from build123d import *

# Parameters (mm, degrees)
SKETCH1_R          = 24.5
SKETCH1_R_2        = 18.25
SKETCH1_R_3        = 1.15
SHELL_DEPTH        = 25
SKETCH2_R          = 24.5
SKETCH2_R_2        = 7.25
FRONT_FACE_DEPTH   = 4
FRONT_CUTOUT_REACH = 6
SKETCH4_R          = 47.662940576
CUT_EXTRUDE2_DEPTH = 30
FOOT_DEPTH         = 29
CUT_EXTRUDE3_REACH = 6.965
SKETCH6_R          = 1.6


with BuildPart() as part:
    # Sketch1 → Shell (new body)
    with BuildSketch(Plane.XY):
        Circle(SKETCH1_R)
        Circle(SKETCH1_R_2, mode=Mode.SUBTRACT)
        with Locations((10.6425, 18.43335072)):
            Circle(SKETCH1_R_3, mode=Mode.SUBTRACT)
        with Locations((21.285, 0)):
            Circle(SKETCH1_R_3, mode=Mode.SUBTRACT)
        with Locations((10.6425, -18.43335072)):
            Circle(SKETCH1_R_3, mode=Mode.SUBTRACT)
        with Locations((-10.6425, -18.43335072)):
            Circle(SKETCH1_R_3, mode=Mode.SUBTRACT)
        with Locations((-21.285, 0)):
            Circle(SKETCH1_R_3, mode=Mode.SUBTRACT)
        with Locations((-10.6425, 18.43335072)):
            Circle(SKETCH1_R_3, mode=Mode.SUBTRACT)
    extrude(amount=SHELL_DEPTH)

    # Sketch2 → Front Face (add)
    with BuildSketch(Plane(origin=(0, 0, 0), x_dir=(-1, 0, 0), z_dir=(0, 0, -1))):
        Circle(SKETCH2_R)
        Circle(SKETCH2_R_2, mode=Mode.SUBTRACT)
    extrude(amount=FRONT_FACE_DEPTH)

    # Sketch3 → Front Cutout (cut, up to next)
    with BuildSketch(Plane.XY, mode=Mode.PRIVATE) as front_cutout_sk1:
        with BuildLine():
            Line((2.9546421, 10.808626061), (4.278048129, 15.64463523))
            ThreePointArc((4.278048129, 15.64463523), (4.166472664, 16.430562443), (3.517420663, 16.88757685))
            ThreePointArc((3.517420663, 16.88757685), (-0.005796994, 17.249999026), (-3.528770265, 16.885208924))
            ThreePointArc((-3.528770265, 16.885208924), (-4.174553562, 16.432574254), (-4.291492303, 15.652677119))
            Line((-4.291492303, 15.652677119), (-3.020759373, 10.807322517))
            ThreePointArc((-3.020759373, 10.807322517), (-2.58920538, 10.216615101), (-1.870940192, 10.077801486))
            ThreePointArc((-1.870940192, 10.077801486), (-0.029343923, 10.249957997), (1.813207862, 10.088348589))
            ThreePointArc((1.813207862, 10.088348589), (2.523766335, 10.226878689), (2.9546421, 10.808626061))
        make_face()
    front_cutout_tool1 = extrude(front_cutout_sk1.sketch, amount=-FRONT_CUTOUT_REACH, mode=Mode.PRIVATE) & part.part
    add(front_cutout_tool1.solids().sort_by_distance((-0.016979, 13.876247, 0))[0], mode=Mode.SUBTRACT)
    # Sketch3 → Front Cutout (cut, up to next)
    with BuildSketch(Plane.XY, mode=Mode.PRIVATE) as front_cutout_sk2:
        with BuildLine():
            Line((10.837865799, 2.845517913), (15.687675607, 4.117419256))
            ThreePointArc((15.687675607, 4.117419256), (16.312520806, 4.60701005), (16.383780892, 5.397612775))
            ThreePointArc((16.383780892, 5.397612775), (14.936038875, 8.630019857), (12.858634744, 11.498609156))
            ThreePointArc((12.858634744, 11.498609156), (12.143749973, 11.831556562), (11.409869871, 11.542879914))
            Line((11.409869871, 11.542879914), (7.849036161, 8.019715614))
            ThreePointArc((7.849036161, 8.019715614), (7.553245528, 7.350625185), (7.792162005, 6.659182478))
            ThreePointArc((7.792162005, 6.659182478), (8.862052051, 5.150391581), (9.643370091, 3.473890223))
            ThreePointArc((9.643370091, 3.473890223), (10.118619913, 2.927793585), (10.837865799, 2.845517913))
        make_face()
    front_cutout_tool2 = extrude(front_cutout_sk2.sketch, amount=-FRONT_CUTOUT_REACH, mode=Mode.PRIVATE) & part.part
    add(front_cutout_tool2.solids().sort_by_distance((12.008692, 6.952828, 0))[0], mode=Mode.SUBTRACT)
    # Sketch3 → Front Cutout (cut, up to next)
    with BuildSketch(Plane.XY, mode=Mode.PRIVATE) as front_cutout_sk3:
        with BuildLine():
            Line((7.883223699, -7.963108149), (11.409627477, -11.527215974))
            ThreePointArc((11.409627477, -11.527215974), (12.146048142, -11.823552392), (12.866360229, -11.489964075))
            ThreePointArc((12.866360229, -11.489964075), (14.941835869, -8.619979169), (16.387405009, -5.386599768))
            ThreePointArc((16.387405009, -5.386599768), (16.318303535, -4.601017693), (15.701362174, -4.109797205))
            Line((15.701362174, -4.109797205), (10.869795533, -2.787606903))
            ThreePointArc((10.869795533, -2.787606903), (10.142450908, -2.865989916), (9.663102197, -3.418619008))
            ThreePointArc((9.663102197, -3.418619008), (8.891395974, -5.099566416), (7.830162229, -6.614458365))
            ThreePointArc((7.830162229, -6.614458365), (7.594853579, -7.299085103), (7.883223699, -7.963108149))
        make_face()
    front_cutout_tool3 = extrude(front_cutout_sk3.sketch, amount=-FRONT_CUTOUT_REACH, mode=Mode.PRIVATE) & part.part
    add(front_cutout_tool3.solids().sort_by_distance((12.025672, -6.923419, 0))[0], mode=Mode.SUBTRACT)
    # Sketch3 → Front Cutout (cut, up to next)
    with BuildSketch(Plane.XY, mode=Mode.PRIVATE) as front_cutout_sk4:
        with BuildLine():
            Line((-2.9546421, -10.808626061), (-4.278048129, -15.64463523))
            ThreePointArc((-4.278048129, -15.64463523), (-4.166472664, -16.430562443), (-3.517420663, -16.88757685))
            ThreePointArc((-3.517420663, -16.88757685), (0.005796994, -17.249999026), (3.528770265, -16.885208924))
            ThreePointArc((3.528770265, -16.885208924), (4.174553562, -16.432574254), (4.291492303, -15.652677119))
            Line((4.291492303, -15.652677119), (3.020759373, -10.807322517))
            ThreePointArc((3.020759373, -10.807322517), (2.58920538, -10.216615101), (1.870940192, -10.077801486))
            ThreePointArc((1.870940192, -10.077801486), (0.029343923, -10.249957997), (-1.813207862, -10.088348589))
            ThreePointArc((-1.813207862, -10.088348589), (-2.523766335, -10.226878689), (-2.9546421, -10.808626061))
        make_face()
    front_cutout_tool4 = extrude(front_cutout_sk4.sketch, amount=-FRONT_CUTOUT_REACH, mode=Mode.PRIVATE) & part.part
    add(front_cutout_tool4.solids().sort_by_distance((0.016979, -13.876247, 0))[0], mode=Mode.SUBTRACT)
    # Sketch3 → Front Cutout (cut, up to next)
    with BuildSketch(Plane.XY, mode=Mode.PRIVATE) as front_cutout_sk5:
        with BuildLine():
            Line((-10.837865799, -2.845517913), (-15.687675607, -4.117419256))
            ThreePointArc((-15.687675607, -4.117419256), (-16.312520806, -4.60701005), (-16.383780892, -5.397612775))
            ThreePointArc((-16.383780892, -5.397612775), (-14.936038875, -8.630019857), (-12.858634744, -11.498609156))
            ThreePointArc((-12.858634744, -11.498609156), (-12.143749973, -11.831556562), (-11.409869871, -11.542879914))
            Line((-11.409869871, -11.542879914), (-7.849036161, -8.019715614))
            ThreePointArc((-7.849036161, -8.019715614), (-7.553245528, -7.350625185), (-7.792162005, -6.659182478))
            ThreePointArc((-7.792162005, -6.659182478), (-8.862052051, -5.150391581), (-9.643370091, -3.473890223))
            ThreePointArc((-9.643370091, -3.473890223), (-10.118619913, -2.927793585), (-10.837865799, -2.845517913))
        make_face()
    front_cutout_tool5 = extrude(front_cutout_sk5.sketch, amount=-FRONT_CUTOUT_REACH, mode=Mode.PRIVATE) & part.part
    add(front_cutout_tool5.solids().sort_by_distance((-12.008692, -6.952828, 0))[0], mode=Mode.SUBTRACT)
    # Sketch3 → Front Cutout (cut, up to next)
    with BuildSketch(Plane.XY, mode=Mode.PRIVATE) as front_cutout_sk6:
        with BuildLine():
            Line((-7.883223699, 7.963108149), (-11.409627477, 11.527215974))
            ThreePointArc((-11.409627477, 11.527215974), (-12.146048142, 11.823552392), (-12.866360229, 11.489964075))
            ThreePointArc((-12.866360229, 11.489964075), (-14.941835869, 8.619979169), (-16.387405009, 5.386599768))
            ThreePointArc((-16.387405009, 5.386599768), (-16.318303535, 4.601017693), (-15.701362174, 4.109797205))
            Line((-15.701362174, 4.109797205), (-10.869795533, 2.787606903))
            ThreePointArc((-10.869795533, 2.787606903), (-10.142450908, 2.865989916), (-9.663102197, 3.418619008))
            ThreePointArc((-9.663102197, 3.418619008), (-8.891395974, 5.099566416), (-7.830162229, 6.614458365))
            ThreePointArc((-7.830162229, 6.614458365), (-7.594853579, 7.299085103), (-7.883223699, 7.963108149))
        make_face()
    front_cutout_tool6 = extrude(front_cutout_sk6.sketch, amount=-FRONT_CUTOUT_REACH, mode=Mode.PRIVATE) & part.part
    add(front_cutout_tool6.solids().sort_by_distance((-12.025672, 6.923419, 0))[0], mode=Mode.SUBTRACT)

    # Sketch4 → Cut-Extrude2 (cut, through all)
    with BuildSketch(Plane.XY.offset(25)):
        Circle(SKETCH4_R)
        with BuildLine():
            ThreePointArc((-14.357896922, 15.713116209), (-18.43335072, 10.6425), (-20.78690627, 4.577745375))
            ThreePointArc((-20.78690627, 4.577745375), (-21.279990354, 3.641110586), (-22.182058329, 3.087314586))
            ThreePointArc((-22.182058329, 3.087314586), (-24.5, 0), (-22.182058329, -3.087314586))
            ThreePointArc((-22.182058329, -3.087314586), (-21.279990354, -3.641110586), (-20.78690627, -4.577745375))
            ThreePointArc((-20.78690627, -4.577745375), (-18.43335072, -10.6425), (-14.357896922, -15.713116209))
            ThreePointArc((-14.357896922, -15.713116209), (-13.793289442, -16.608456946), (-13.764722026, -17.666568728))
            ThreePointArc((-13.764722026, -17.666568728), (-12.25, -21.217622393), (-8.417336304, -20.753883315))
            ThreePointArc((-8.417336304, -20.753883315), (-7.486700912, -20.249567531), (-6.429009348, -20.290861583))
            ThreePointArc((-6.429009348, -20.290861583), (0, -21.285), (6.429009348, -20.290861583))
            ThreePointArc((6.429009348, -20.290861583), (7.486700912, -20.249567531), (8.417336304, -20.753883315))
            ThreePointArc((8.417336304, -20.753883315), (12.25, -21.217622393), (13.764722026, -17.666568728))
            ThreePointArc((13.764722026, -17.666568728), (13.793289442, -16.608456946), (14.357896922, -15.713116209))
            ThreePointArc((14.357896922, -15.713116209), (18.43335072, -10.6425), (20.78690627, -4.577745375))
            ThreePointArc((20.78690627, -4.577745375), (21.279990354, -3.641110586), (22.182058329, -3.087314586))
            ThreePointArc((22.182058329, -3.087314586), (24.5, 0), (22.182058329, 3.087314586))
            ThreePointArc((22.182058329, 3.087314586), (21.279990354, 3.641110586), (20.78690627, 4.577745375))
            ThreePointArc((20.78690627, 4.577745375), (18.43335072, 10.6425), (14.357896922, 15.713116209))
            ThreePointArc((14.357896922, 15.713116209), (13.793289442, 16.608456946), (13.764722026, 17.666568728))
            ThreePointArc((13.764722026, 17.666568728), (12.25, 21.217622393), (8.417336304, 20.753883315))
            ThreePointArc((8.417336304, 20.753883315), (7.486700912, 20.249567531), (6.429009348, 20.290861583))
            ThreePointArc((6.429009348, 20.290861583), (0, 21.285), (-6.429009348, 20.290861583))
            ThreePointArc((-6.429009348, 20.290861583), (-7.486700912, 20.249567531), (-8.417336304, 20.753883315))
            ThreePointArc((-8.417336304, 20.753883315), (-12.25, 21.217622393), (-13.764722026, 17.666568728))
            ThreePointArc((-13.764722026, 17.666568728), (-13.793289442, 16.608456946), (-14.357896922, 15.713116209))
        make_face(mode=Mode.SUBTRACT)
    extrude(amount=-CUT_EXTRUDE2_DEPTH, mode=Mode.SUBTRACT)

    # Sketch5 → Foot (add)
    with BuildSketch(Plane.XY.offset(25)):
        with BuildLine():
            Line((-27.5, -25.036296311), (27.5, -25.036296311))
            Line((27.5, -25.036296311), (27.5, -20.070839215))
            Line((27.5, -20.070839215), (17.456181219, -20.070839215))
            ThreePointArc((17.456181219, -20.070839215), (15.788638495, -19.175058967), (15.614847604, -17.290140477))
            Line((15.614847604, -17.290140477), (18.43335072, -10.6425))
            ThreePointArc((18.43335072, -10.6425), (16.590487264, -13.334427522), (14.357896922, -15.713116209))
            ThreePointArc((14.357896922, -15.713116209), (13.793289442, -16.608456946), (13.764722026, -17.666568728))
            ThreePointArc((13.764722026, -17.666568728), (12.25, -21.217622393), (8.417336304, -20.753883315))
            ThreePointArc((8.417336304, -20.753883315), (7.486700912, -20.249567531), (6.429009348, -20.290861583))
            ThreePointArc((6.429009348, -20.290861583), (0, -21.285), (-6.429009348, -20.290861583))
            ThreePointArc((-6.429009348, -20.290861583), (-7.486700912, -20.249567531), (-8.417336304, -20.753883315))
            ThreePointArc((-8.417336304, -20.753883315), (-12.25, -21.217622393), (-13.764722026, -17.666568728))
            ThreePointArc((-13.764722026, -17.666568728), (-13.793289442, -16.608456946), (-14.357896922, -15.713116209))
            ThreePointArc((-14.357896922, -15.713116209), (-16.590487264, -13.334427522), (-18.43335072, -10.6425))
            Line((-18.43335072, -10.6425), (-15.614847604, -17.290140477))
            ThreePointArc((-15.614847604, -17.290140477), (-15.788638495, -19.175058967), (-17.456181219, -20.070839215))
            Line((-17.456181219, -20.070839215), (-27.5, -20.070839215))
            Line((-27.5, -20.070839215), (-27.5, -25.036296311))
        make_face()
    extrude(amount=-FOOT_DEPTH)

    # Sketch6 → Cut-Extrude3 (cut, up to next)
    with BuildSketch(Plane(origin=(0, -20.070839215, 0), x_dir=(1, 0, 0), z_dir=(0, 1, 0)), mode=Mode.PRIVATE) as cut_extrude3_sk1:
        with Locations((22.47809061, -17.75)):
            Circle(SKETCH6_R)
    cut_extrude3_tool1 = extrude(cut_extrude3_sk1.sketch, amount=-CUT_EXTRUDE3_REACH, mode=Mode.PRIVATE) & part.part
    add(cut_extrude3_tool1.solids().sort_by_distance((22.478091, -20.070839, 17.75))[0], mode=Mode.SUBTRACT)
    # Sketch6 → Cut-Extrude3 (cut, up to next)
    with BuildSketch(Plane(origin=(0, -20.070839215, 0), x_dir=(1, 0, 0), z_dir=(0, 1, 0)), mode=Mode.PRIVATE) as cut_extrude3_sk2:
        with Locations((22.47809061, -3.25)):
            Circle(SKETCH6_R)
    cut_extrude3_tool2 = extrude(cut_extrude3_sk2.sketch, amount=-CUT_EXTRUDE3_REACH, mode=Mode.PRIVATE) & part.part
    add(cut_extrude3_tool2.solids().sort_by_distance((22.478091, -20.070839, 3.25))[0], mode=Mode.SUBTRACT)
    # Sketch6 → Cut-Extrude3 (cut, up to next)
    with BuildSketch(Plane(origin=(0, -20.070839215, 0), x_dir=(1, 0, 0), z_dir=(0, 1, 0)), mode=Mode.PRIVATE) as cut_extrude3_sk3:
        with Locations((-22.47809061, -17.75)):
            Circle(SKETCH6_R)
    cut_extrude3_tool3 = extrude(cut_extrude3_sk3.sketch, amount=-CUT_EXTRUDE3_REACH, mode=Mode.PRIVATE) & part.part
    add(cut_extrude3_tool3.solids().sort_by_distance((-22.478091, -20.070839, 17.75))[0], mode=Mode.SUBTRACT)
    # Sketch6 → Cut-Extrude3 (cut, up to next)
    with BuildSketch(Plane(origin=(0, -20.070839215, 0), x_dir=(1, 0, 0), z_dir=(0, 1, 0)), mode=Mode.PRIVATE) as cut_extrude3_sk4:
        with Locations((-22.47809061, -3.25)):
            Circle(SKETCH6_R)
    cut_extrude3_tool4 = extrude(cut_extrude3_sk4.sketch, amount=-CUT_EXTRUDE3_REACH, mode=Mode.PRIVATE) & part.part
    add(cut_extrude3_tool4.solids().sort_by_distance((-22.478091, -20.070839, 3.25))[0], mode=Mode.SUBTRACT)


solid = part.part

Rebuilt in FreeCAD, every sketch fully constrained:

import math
import FreeCAD as App
import Part
import Sketcher
from FreeCAD import Vector
Q = App.Units.Quantity

doc = App.newDocument("Part")
body = doc.addObject("PartDesign::Body", "Body")

# Sketch on XY plane
sketch1 = body.newObject("Sketcher::SketchObject", "Sketch")
sketch1.AttachmentSupport = (doc.getObject("XY_Plane"), [""])
sketch1.MapMode = "FlatFace"
sketch1.addGeometry([
    Part.Circle(Vector(0, 0, 0), Vector(0, 0, 1), 24.5),  # 0
    Part.Circle(Vector(-10.6, -18.4, 0), Vector(0, 0, 1), 1.1),  # 1
    Part.Circle(Vector(10.6, -18.4, 0), Vector(0, 0, 1), 1.1),  # 2
    Part.Circle(Vector(-21.3, 0, 0), Vector(0, 0, 1), 1.1),  # 3
    Part.Circle(Vector(-10.6, 18.4, 0), Vector(0, 0, 1), 1.1),  # 4
    Part.Circle(Vector(0, 0, 0), Vector(0, 0, 1), 18.2),  # 5
    Part.Circle(Vector(21.3, 0, 0), Vector(0, 0, 1), 1.1),  # 6
    Part.Circle(Vector(10.6, 18.4, 0), Vector(0, 0, 1), 1.1),  # 7
], False)
sketch1.addConstraint([
    Sketcher.Constraint("Coincident", 0, 3, -1, 1),
    Sketcher.Constraint("Coincident", 5, 3, -1, 1),
    Sketcher.Constraint("Equal", 1, 2),
    Sketcher.Constraint("Equal", 2, 3),
    Sketcher.Constraint("Equal", 3, 4),
    Sketcher.Constraint("Equal", 4, 6),
    Sketcher.Constraint("Equal", 6, 7),
    Sketcher.Constraint("Symmetric", 2, 3, 4, 3, -1, 1),
    Sketcher.Constraint("Symmetric", 3, 3, 6, 3, -1, 1),
    Sketcher.Constraint("Symmetric", 1, 3, 7, 3, -1, 1),
    Sketcher.Constraint("Symmetric", 1, 3, 2, 3, -2),
    Sketcher.Constraint("PointOnObject", 3, 3, -1),
    Sketcher.Constraint("Diameter", 0, Q("49 mm")),
    Sketcher.Constraint("Diameter", 1, Q("2.3 mm")),
    Sketcher.Constraint("Diameter", 5, Q("36.5 mm")),
    Sketcher.Constraint("DistanceX", 3, 3, -1, 1, Q("21.285 mm")),
    Sketcher.Constraint("DistanceX", 1, 3, 2, 3, Q("21.285 mm")),
    Sketcher.Constraint("DistanceY", 1, 3, 4, 3, Q("36.866701 mm")),
])
pad1 = body.newObject("PartDesign::Pad", "Pad")
pad1.Profile = sketch1
pad1.Length = 25

# Sketch on XY plane
sketch2 = body.newObject("Sketcher::SketchObject", "Sketch001")
sketch2.AttachmentSupport = (doc.getObject("XY_Plane"), [""])
sketch2.MapMode = "FlatFace"
sketch2.addGeometry([
    Part.Circle(Vector(0, 0, 0), Vector(0, 0, 1), 24),
    Part.Circle(Vector(0, 0, 0), Vector(0, 0, 1), 7),
], False)
sketch2.addConstraint([
    Sketcher.Constraint("Coincident", 0, 3, -1, 1),
    Sketcher.Constraint("Coincident", 1, 3, -1, 1),
    Sketcher.Constraint("Diameter", 0, Q("49 mm")),
    Sketcher.Constraint("Diameter", 1, Q("14.5 mm")),
])
pad2 = body.newObject("PartDesign::Pad", "Pad001")
pad2.Profile = sketch2
pad2.Length = 4
pad2.Reversed = True

# Sketch on XY plane
sketch3 = body.newObject("Sketcher::SketchObject", "Sketch002")
sketch3.AttachmentSupport = (doc.getObject("XY_Plane"), [""])
sketch3.MapMode = "FlatFace"
sketch3.addGeometry([
    Part.LineSegment(Vector(3, 10.8, 0), Vector(4.3, 15.6, 0)),  # 0
    Part.ArcOfCircle(Part.Circle(Vector(3.3, 15.9, 0), Vector(0, 0, 1), 1), math.radians(-15), math.radians(78)),  # 1
    Part.ArcOfCircle(Part.Circle(Vector(0, 0, 0), Vector(0, 0, 1), 17.2), math.radians(78), math.radians(102)),  # 2
    Part.ArcOfCircle(Part.Circle(Vector(-3.3, 15.9, 0), Vector(0, 0, 1), 1), math.radians(102), math.radians(195)),  # 3
    Part.LineSegment(Vector(-4.3, 15.7, 0), Vector(-3, 10.8, 0)),  # 4
    Part.ArcOfCircle(Part.Circle(Vector(-2.1, 11.1, 0), Vector(0, 0, 1), 1), math.radians(-165), math.radians(-79)),  # 5
    Part.ArcOfCircle(Part.Circle(Vector(0, 0, 0), Vector(0, 0, 1), 10.2), math.radians(80), math.radians(101)),  # 6
    Part.ArcOfCircle(Part.Circle(Vector(2, 11.1, 0), Vector(0, 0, 1), 1), math.radians(-100), math.radians(-15)),  # 7
], False)
sketch3.addConstraint([
    Sketcher.Constraint("Tangent", 0, 2, 1, 1),
    Sketcher.Constraint("Tangent", 1, 2, 2, 1),
    Sketcher.Constraint("Tangent", 2, 2, 3, 1),
    Sketcher.Constraint("Tangent", 3, 2, 4, 1),
    Sketcher.Constraint("Tangent", 4, 2, 5, 1),
    Sketcher.Constraint("Tangent", 5, 2, 6, 2),
    Sketcher.Constraint("Tangent", 6, 1, 7, 1),
    Sketcher.Constraint("Tangent", 7, 2, 0, 1),
    Sketcher.Constraint("Coincident", 2, 3, -1, 1),
    Sketcher.Constraint("Coincident", 6, 3, -1, 1),
    Sketcher.Constraint("Equal", 1, 3),
    Sketcher.Constraint("Equal", 3, 5),
    Sketcher.Constraint("Equal", 5, 7),
    Sketcher.Constraint("Radius", 1, Q("1 mm")),
    Sketcher.Constraint("Radius", 2, Q("17.25 mm")),
    Sketcher.Constraint("Radius", 6, Q("10.25 mm")),
    Sketcher.Constraint("DistanceY", -1, 1, 5, 3, Q("11.061002 mm")),
    Sketcher.Constraint("DistanceY", 7, 3, 1, 2, Q("5.814999 mm")),
    Sketcher.Constraint("DistanceX", 2, 2, 5, 3, Q("1.475299 mm")),
    Sketcher.Constraint("DistanceX", 3, 2, 7, 3, Q("6.281598 mm")),
])
pocket1 = body.newObject("PartDesign::Pocket", "Pocket")
pocket1.Profile = sketch3
pocket1.Type = "UpToFirst"

# Sketch on XY plane
sketch4 = body.newObject("Sketcher::SketchObject", "Sketch003")
sketch4.AttachmentSupport = (doc.getObject("XY_Plane"), [""])
sketch4.MapMode = "FlatFace"
sketch4.addGeometry([
    Part.LineSegment(Vector(10.8, 2.8, 0), Vector(15.7, 4.1, 0)),  # 0
    Part.ArcOfCircle(Part.Circle(Vector(15.4, 5.1, 0), Vector(0, 0, 1), 1), math.radians(-75), math.radians(18)),  # 1
    Part.ArcOfCircle(Part.Circle(Vector(0, 0, 0), Vector(0, 0, 1), 17.2), math.radians(18), math.radians(42)),  # 2
    Part.ArcOfCircle(Part.Circle(Vector(12.1, 10.8, 0), Vector(0, 0, 1), 1), math.radians(42), math.radians(135)),  # 3
    Part.LineSegment(Vector(11.4, 11.5, 0), Vector(7.8, 8, 0)),  # 4
    Part.ArcOfCircle(Part.Circle(Vector(8.6, 7.3, 0), Vector(0, 0, 1), 1), math.radians(135), math.radians(221)),  # 5
    Part.ArcOfCircle(Part.Circle(Vector(0, 0, 0), Vector(0, 0, 1), 10.2), math.radians(20), math.radians(41)),  # 6
    Part.ArcOfCircle(Part.Circle(Vector(10.6, 3.8, 0), Vector(0, 0, 1), 1), math.radians(-160), math.radians(-75)),  # 7
], False)
sketch4.addConstraint([
    Sketcher.Constraint("Tangent", 0, 2, 1, 1),
    Sketcher.Constraint("Tangent", 1, 2, 2, 1),
    Sketcher.Constraint("Tangent", 2, 2, 3, 1),
    Sketcher.Constraint("Tangent", 3, 2, 4, 1),
    Sketcher.Constraint("Tangent", 4, 2, 5, 1),
    Sketcher.Constraint("Tangent", 5, 2, 6, 2),
    Sketcher.Constraint("Tangent", 6, 1, 7, 1),
    Sketcher.Constraint("Tangent", 7, 2, 0, 1),
    Sketcher.Constraint("Coincident", 2, 3, -1, 1),
    Sketcher.Constraint("Coincident", 6, 3, -1, 1),
    Sketcher.Constraint("Equal", 1, 3),
    Sketcher.Constraint("Equal", 3, 5),
    Sketcher.Constraint("Equal", 5, 7),
    Sketcher.Constraint("Radius", 1, Q("1 mm")),
    Sketcher.Constraint("Radius", 2, Q("17.25 mm")),
    Sketcher.Constraint("Radius", 6, Q("10.25 mm")),
    Sketcher.Constraint("DistanceY", 7, 3, 1, 3, Q("1.271901 mm")),
    Sketcher.Constraint("DistanceY", 1, 3, 2, 2, Q("6.413901 mm")),
    Sketcher.Constraint("DistanceX", 4, 2, 2, 2, Q("5.009599 mm")),
    Sketcher.Constraint("Distance", 0, Q("5.01382 mm")),
])
pocket2 = body.newObject("PartDesign::Pocket", "Pocket001")
pocket2.Profile = sketch4
pocket2.Type = "UpToFirst"

# Sketch on XY plane
sketch5 = body.newObject("Sketcher::SketchObject", "Sketch004")
sketch5.AttachmentSupport = (doc.getObject("XY_Plane"), [""])
sketch5.MapMode = "FlatFace"
sketch5.addGeometry([
    Part.LineSegment(Vector(7.9, -8, 0), Vector(11.4, -11.5, 0)),  # 0
    Part.ArcOfCircle(Part.Circle(Vector(12.1, -10.8, 0), Vector(0, 0, 1), 1), math.radians(-135), math.radians(-42)),  # 1
    Part.ArcOfCircle(Part.Circle(Vector(0, 0, 0), Vector(0, 0, 1), 17.2), math.radians(-42), math.radians(-18)),  # 2
    Part.ArcOfCircle(Part.Circle(Vector(15.4, -5.1, 0), Vector(0, 0, 1), 1), math.radians(-18), math.radians(75)),  # 3
    Part.LineSegment(Vector(15.7, -4.1, 0), Vector(10.9, -2.8, 0)),  # 4
    Part.ArcOfCircle(Part.Circle(Vector(10.6, -3.8, 0), Vector(0, 0, 1), 1), math.radians(75), math.radians(161)),  # 5
    Part.ArcOfCircle(Part.Circle(Vector(0, 0, 0), Vector(0, 0, 1), 10.2), math.radians(-40), math.radians(-19)),  # 6
    Part.ArcOfCircle(Part.Circle(Vector(8.6, -7.3, 0), Vector(0, 0, 1), 1), math.radians(140), math.radians(225)),  # 7
], False)
sketch5.addConstraint([
    Sketcher.Constraint("Tangent", 0, 2, 1, 1),
    Sketcher.Constraint("Tangent", 1, 2, 2, 1),
    Sketcher.Constraint("Tangent", 2, 2, 3, 1),
    Sketcher.Constraint("Tangent", 3, 2, 4, 1),
    Sketcher.Constraint("Tangent", 4, 2, 5, 1),
    Sketcher.Constraint("Tangent", 5, 2, 6, 2),
    Sketcher.Constraint("Tangent", 6, 1, 7, 1),
    Sketcher.Constraint("Tangent", 7, 2, 0, 1),
    Sketcher.Constraint("Coincident", 2, 3, -1, 1),
    Sketcher.Constraint("Coincident", 6, 3, -1, 1),
    Sketcher.Constraint("Equal", 1, 3),
    Sketcher.Constraint("Equal", 3, 5),
    Sketcher.Constraint("Equal", 5, 7),
    Sketcher.Constraint("Radius", 1, Q("1 mm")),
    Sketcher.Constraint("Radius", 2, Q("17.25 mm")),
    Sketcher.Constraint("Radius", 6, Q("10.25 mm")),
    Sketcher.Constraint("DistanceY", 2, 2, -1, 1, Q("5.3866 mm")),
    Sketcher.Constraint("Distance", 0, Q("5.01382 mm")),
    Sketcher.Constraint("DistanceY", 1, 3, -1, 1, Q("10.823879 mm")),
    Sketcher.Constraint("DistanceY", 5, 2, -1, 1, Q("3.418619 mm")),
])
pocket3 = body.newObject("PartDesign::Pocket", "Pocket002")
pocket3.Profile = sketch5
pocket3.Type = "UpToFirst"

# Sketch on XY plane
sketch6 = body.newObject("Sketcher::SketchObject", "Sketch005")
sketch6.AttachmentSupport = (doc.getObject("XY_Plane"), [""])
sketch6.MapMode = "FlatFace"
sketch6.addGeometry([
    Part.LineSegment(Vector(-3, -10.8, 0), Vector(-4.3, -15.6, 0)),  # 0
    Part.ArcOfCircle(Part.Circle(Vector(-3.3, -15.9, 0), Vector(0, 0, 1), 1), math.radians(165), math.radians(258)),  # 1
    Part.ArcOfCircle(Part.Circle(Vector(0, 0, 0), Vector(0, 0, 1), 17.2), math.radians(-102), math.radians(-78)),  # 2
    Part.ArcOfCircle(Part.Circle(Vector(3.3, -15.9, 0), Vector(0, 0, 1), 1), math.radians(-78), math.radians(15)),  # 3
    Part.LineSegment(Vector(4.3, -15.7, 0), Vector(3, -10.8, 0)),  # 4
    Part.ArcOfCircle(Part.Circle(Vector(2.1, -11.1, 0), Vector(0, 0, 1), 1), math.radians(15), math.radians(101)),  # 5
    Part.ArcOfCircle(Part.Circle(Vector(0, 0, 0), Vector(0, 0, 1), 10.2), math.radians(-100), math.radians(-79)),  # 6
    Part.ArcOfCircle(Part.Circle(Vector(-2, -11.1, 0), Vector(0, 0, 1), 1), math.radians(80), math.radians(165)),  # 7
], False)
sketch6.addConstraint([
    Sketcher.Constraint("Tangent", 0, 2, 1, 1),
    Sketcher.Constraint("Tangent", 1, 2, 2, 1),
    Sketcher.Constraint("Tangent", 2, 2, 3, 1),
    Sketcher.Constraint("Tangent", 3, 2, 4, 1),
    Sketcher.Constraint("Tangent", 4, 2, 5, 1),
    Sketcher.Constraint("Tangent", 5, 2, 6, 2),
    Sketcher.Constraint("Tangent", 6, 1, 7, 1),
    Sketcher.Constraint("Tangent", 7, 2, 0, 1),
    Sketcher.Constraint("Coincident", 2, 3, -1, 1),
    Sketcher.Constraint("Coincident", 6, 3, -1, 1),
    Sketcher.Constraint("Equal", 1, 3),
    Sketcher.Constraint("Equal", 3, 5),
    Sketcher.Constraint("Equal", 5, 7),
    Sketcher.Constraint("Radius", 1, Q("1 mm")),
    Sketcher.Constraint("Radius", 2, Q("17.25 mm")),
    Sketcher.Constraint("Radius", 6, Q("10.25 mm")),
    Sketcher.Constraint("DistanceY", 5, 3, -1, 1, Q("11.061002 mm")),
    Sketcher.Constraint("DistanceY", 1, 2, 7, 3, Q("5.814999 mm")),
    Sketcher.Constraint("DistanceX", 5, 3, 2, 2, Q("1.475299 mm")),
    Sketcher.Constraint("DistanceX", 7, 3, 3, 2, Q("6.281598 mm")),
])
pocket4 = body.newObject("PartDesign::Pocket", "Pocket003")
pocket4.Profile = sketch6
pocket4.Type = "UpToFirst"

# Sketch on XY plane
sketch7 = body.newObject("Sketcher::SketchObject", "Sketch006")
sketch7.AttachmentSupport = (doc.getObject("XY_Plane"), [""])
sketch7.MapMode = "FlatFace"
sketch7.addGeometry([
    Part.LineSegment(Vector(-10.8, -2.8, 0), Vector(-15.7, -4.1, 0)),  # 0
    Part.ArcOfCircle(Part.Circle(Vector(-15.4, -5.1, 0), Vector(0, 0, 1), 1), math.radians(105), math.radians(198)),  # 1
    Part.ArcOfCircle(Part.Circle(Vector(0, 0, 0), Vector(0, 0, 1), 17.2), math.radians(-162), math.radians(-138)),  # 2
    Part.ArcOfCircle(Part.Circle(Vector(-12.1, -10.8, 0), Vector(0, 0, 1), 1), math.radians(-138), math.radians(-45)),  # 3
    Part.LineSegment(Vector(-11.4, -11.5, 0), Vector(-7.8, -8, 0)),  # 4
    Part.ArcOfCircle(Part.Circle(Vector(-8.6, -7.3, 0), Vector(0, 0, 1), 1), math.radians(-45), math.radians(41)),  # 5
    Part.ArcOfCircle(Part.Circle(Vector(0, 0, 0), Vector(0, 0, 1), 10.2), math.radians(-160), math.radians(-139)),  # 6
    Part.ArcOfCircle(Part.Circle(Vector(-10.6, -3.8, 0), Vector(0, 0, 1), 1), math.radians(20), math.radians(105)),  # 7
], False)
sketch7.addConstraint([
    Sketcher.Constraint("Tangent", 0, 2, 1, 1),
    Sketcher.Constraint("Tangent", 1, 2, 2, 1),
    Sketcher.Constraint("Tangent", 2, 2, 3, 1),
    Sketcher.Constraint("Tangent", 3, 2, 4, 1),
    Sketcher.Constraint("Tangent", 4, 2, 5, 1),
    Sketcher.Constraint("Tangent", 5, 2, 6, 2),
    Sketcher.Constraint("Tangent", 6, 1, 7, 1),
    Sketcher.Constraint("Tangent", 7, 2, 0, 1),
    Sketcher.Constraint("Coincident", 2, 3, -1, 1),
    Sketcher.Constraint("Coincident", 6, 3, -1, 1),
    Sketcher.Constraint("Equal", 1, 3),
    Sketcher.Constraint("Equal", 3, 5),
    Sketcher.Constraint("Equal", 5, 7),
    Sketcher.Constraint("Radius", 1, Q("1 mm")),
    Sketcher.Constraint("Radius", 2, Q("17.25 mm")),
    Sketcher.Constraint("Radius", 6, Q("10.25 mm")),
    Sketcher.Constraint("DistanceY", 1, 3, 7, 3, Q("1.271901 mm")),
    Sketcher.Constraint("DistanceY", 2, 2, 1, 3, Q("6.413901 mm")),
    Sketcher.Constraint("DistanceX", 2, 2, 4, 2, Q("5.009599 mm")),
    Sketcher.Constraint("Distance", 0, Q("5.01382 mm")),
])
pocket5 = body.newObject("PartDesign::Pocket", "Pocket004")
pocket5.Profile = sketch7
pocket5.Type = "UpToFirst"

# Sketch on XY plane
sketch8 = body.newObject("Sketcher::SketchObject", "Sketch007")
sketch8.AttachmentSupport = (doc.getObject("XY_Plane"), [""])
sketch8.MapMode = "FlatFace"
sketch8.addGeometry([
    Part.LineSegment(Vector(-7.9, 8, 0), Vector(-11.4, 11.5, 0)),  # 0
    Part.ArcOfCircle(Part.Circle(Vector(-12.1, 10.8, 0), Vector(0, 0, 1), 1), math.radians(45), math.radians(138)),  # 1
    Part.ArcOfCircle(Part.Circle(Vector(0, 0, 0), Vector(0, 0, 1), 17.2), math.radians(138), math.radians(162)),  # 2
    Part.ArcOfCircle(Part.Circle(Vector(-15.4, 5.1, 0), Vector(0, 0, 1), 1), math.radians(162), math.radians(255)),  # 3
    Part.LineSegment(Vector(-15.7, 4.1, 0), Vector(-10.9, 2.8, 0)),  # 4
    Part.ArcOfCircle(Part.Circle(Vector(-10.6, 3.8, 0), Vector(0, 0, 1), 1), math.radians(-105), math.radians(-19)),  # 5
    Part.ArcOfCircle(Part.Circle(Vector(0, 0, 0), Vector(0, 0, 1), 10.2), math.radians(140), math.radians(161)),  # 6
    Part.ArcOfCircle(Part.Circle(Vector(-8.6, 7.3, 0), Vector(0, 0, 1), 1), math.radians(-40), math.radians(45)),  # 7
], False)
sketch8.addConstraint([
    Sketcher.Constraint("Tangent", 0, 2, 1, 1),
    Sketcher.Constraint("Tangent", 1, 2, 2, 1),
    Sketcher.Constraint("Tangent", 2, 2, 3, 1),
    Sketcher.Constraint("Tangent", 3, 2, 4, 1),
    Sketcher.Constraint("Tangent", 4, 2, 5, 1),
    Sketcher.Constraint("Tangent", 5, 2, 6, 2),
    Sketcher.Constraint("Tangent", 6, 1, 7, 1),
    Sketcher.Constraint("Tangent", 7, 2, 0, 1),
    Sketcher.Constraint("Coincident", 2, 3, -1, 1),
    Sketcher.Constraint("Coincident", 6, 3, -1, 1),
    Sketcher.Constraint("Equal", 1, 3),
    Sketcher.Constraint("Equal", 3, 5),
    Sketcher.Constraint("Equal", 5, 7),
    Sketcher.Constraint("Radius", 1, Q("1 mm")),
    Sketcher.Constraint("Radius", 2, Q("17.25 mm")),
    Sketcher.Constraint("Radius", 6, Q("10.25 mm")),
    Sketcher.Constraint("DistanceY", -1, 1, 2, 2, Q("5.3866 mm")),
    Sketcher.Constraint("Distance", 0, Q("5.01382 mm")),
    Sketcher.Constraint("DistanceY", -1, 1, 1, 3, Q("10.823879 mm")),
    Sketcher.Constraint("DistanceY", -1, 1, 5, 2, Q("3.418619 mm")),
])
pocket6 = body.newObject("PartDesign::Pocket", "Pocket005")
pocket6.Profile = sketch8
pocket6.Type = "UpToFirst"

# Sketch on XY plane
sketch9 = body.newObject("Sketcher::SketchObject", "Sketch008")
sketch9.AttachmentSupport = (doc.getObject("XY_Plane"), [""])
sketch9.MapMode = "FlatFace"
sketch9.AttachmentOffset = App.Placement(Vector(0, 0, 25), App.Rotation())
sketch9.addGeometry([
    Part.Circle(Vector(0, 0, 0), Vector(0, 0, 1), 47.7),  # 0
    Part.ArcOfCircle(Part.Circle(Vector(0, 0, 0), Vector(0, 0, 1), 21.3), math.radians(132), math.radians(168)),  # 1
    Part.ArcOfCircle(Part.Circle(Vector(-15.7, 17.2, 0), Vector(0, 0, 1), 2), math.radians(-48), math.radians(14)),  # 2
    Part.ArcOfCircle(Part.Circle(Vector(-10.6, 18.4, 0), Vector(0, 0, 1), 3.2), math.radians(46), math.radians(194)),  # 3
    Part.ArcOfCircle(Part.Circle(Vector(-7, 22.2, 0), Vector(0, 0, 1), 2), math.radians(-134), math.radians(-72)),  # 4
    Part.ArcOfCircle(Part.Circle(Vector(0, 0, 0), Vector(0, 0, 1), 21.3), math.radians(72), math.radians(108)),  # 5
    Part.ArcOfCircle(Part.Circle(Vector(7, 22.2, 0), Vector(0, 0, 1), 2), math.radians(-108), math.radians(-46)),  # 6
    Part.ArcOfCircle(Part.Circle(Vector(10.6, 18.4, 0), Vector(0, 0, 1), 3.2), math.radians(-14), math.radians(134)),  # 7
    Part.ArcOfCircle(Part.Circle(Vector(15.7, 17.2, 0), Vector(0, 0, 1), 2), math.radians(166), math.radians(228)),  # 8
    Part.ArcOfCircle(Part.Circle(Vector(0, 0, 0), Vector(0, 0, 1), 21.3), math.radians(12), math.radians(48)),  # 9
    Part.ArcOfCircle(Part.Circle(Vector(22.7, 5, 0), Vector(0, 0, 1), 2), math.radians(-168), math.radians(-106)),  # 10
    Part.ArcOfCircle(Part.Circle(Vector(21.3, 0, 0), Vector(0, 0, 1), 3.2), math.radians(-74), math.radians(74)),  # 11
    Part.ArcOfCircle(Part.Circle(Vector(22.7, -5, 0), Vector(0, 0, 1), 2), math.radians(106), math.radians(168)),  # 12
    Part.ArcOfCircle(Part.Circle(Vector(0, 0, 0), Vector(0, 0, 1), 21.3), math.radians(-48), math.radians(-12)),  # 13
    Part.ArcOfCircle(Part.Circle(Vector(15.7, -17.2, 0), Vector(0, 0, 1), 2), math.radians(132), math.radians(194)),  # 14
    Part.ArcOfCircle(Part.Circle(Vector(10.6, -18.4, 0), Vector(0, 0, 1), 3.2), math.radians(-134), math.radians(14)),  # 15
    Part.ArcOfCircle(Part.Circle(Vector(7, -22.2, 0), Vector(0, 0, 1), 2), math.radians(46), math.radians(108)),  # 16
    Part.ArcOfCircle(Part.Circle(Vector(0, 0, 0), Vector(0, 0, 1), 21.3), math.radians(-108), math.radians(-72)),  # 17
    Part.ArcOfCircle(Part.Circle(Vector(-7, -22.2, 0), Vector(0, 0, 1), 2), math.radians(72), math.radians(134)),  # 18
    Part.ArcOfCircle(Part.Circle(Vector(-10.6, -18.4, 0), Vector(0, 0, 1), 3.2), math.radians(166), math.radians(314)),  # 19
    Part.ArcOfCircle(Part.Circle(Vector(-15.7, -17.2, 0), Vector(0, 0, 1), 2), math.radians(-14), math.radians(48)),  # 20
    Part.ArcOfCircle(Part.Circle(Vector(0, 0, 0), Vector(0, 0, 1), 21.3), math.radians(-168), math.radians(-132)),  # 21
    Part.ArcOfCircle(Part.Circle(Vector(-22.7, -5, 0), Vector(0, 0, 1), 2), math.radians(12), math.radians(74)),  # 22
    Part.ArcOfCircle(Part.Circle(Vector(-21.3, 0, 0), Vector(0, 0, 1), 3.2), math.radians(106), math.radians(254)),  # 23
    Part.ArcOfCircle(Part.Circle(Vector(-22.7, 5, 0), Vector(0, 0, 1), 2), math.radians(-74), math.radians(-12)),  # 24
], False)
sketch9.addConstraint([
    Sketcher.Constraint("Tangent", 1, 1, 2, 1),
    Sketcher.Constraint("Tangent", 2, 2, 3, 2),
    Sketcher.Constraint("Tangent", 3, 1, 4, 1),
    Sketcher.Constraint("Tangent", 4, 2, 5, 2),
    Sketcher.Constraint("Tangent", 5, 1, 6, 1),
    Sketcher.Constraint("Tangent", 6, 2, 7, 2),
    Sketcher.Constraint("Tangent", 7, 1, 8, 1),
    Sketcher.Constraint("Tangent", 8, 2, 9, 2),
    Sketcher.Constraint("Tangent", 9, 1, 10, 1),
    Sketcher.Constraint("Tangent", 10, 2, 11, 2),
    Sketcher.Constraint("Tangent", 11, 1, 12, 1),
    Sketcher.Constraint("Tangent", 12, 2, 13, 2),
    Sketcher.Constraint("Tangent", 13, 1, 14, 1),
    Sketcher.Constraint("Tangent", 14, 2, 15, 2),
    Sketcher.Constraint("Tangent", 15, 1, 16, 1),
    Sketcher.Constraint("Tangent", 16, 2, 17, 2),
    Sketcher.Constraint("Tangent", 17, 1, 18, 1),
    Sketcher.Constraint("Tangent", 18, 2, 19, 2),
    Sketcher.Constraint("Tangent", 19, 1, 20, 1),
    Sketcher.Constraint("Tangent", 20, 2, 21, 2),
    Sketcher.Constraint("Tangent", 21, 1, 22, 1),
    Sketcher.Constraint("Tangent", 22, 2, 23, 2),
    Sketcher.Constraint("Tangent", 23, 1, 24, 1),
    Sketcher.Constraint("Tangent", 24, 2, 1, 2),
    Sketcher.Constraint("Coincident", 0, 3, -1, 1),
    Sketcher.Constraint("Coincident", 1, 3, -1, 1),
    Sketcher.Constraint("Coincident", 5, 3, -1, 1),
    Sketcher.Constraint("Coincident", 9, 3, -1, 1),
    Sketcher.Constraint("Coincident", 13, 3, -1, 1),
    Sketcher.Constraint("Coincident", 17, 3, -1, 1),
    Sketcher.Constraint("Coincident", 21, 3, -1, 1),
    Sketcher.Constraint("Equal", 2, 4),
    Sketcher.Constraint("Equal", 1, 5),
    Sketcher.Constraint("Equal", 4, 6),
    Sketcher.Constraint("Equal", 3, 7),
    Sketcher.Constraint("Equal", 6, 8),
    Sketcher.Constraint("Equal", 5, 9),
    Sketcher.Constraint("Equal", 8, 10),
    Sketcher.Constraint("Equal", 7, 11),
    Sketcher.Constraint("Equal", 10, 12),
    Sketcher.Constraint("Equal", 9, 13),
    Sketcher.Constraint("Equal", 12, 14),
    Sketcher.Constraint("Equal", 11, 15),
    Sketcher.Constraint("Equal", 14, 16),
    Sketcher.Constraint("Equal", 13, 17),
    Sketcher.Constraint("Equal", 16, 18),
    Sketcher.Constraint("Equal", 15, 19),
    Sketcher.Constraint("Equal", 18, 20),
    Sketcher.Constraint("Equal", 17, 21),
    Sketcher.Constraint("Equal", 20, 22),
    Sketcher.Constraint("Equal", 19, 23),
    Sketcher.Constraint("Equal", 22, 24),
    Sketcher.Constraint("Symmetric", 3, 3, 15, 3, -1, 1),
    Sketcher.Constraint("Symmetric", 7, 3, 19, 3, -1, 1),
    Sketcher.Constraint("Symmetric", 11, 3, 23, 3, -1, 1),
    Sketcher.Constraint("Symmetric", 3, 3, 7, 3, -2),
    Sketcher.Constraint("PointOnObject", 11, 3, -1),
    Sketcher.Constraint("Radius", 2, Q("2 mm")),
    Sketcher.Constraint("Radius", 1, Q("21.285 mm")),
    Sketcher.Constraint("Radius", 3, Q("3.215 mm")),
    Sketcher.Constraint("Diameter", 0, Q("95.325881 mm")),
    Sketcher.Constraint("DistanceX", -1, 1, 11, 3, Q("21.285 mm")),
    Sketcher.Constraint("DistanceX", 3, 3, 7, 3, Q("21.285 mm")),
    Sketcher.Constraint("DistanceY", 3, 3, 4, 3, Q("3.764099 mm")),
])
pocket7 = body.newObject("PartDesign::Pocket", "Pocket006")
pocket7.Profile = sketch9
pocket7.Type = "ThroughAll"

# Sketch on XY plane
sketch10 = body.newObject("Sketcher::SketchObject", "Sketch009")
sketch10.AttachmentSupport = (doc.getObject("XY_Plane"), [""])
sketch10.MapMode = "FlatFace"
sketch10.AttachmentOffset = App.Placement(Vector(0, 0, 25), App.Rotation())
sketch10.addGeometry([
    Part.LineSegment(Vector(-27.5, -25, 0), Vector(27.5, -25, 0)),  # 0
    Part.LineSegment(Vector(27.5, -25, 0), Vector(27.5, -20.1, 0)),  # 1
    Part.LineSegment(Vector(27.5, -20.1, 0), Vector(17.5, -20.1, 0)),  # 2
    Part.ArcOfCircle(Part.Circle(Vector(17.5, -18.1, 0), Vector(0, 0, 1), 2), math.radians(157), math.radians(270)),  # 3
    Part.LineSegment(Vector(15.6, -17.3, 0), Vector(18.4, -10.6, 0)),  # 4
    Part.ArcOfCircle(Part.Circle(Vector(0, 0, 0), Vector(0, 0, 1), 21.3), math.radians(-47.58), math.radians(-30)),  # 5
    Part.ArcOfCircle(Part.Circle(Vector(15.7, -17.2, 0), Vector(0, 0, 1), 2), math.radians(132), math.radians(194)),  # 6
    Part.ArcOfCircle(Part.Circle(Vector(10.6, -18.4, 0), Vector(0, 0, 1), 3.2), math.radians(-134), math.radians(14)),  # 7
    Part.ArcOfCircle(Part.Circle(Vector(7, -22.2, 0), Vector(0, 0, 1), 2), math.radians(46), math.radians(108)),  # 8
    Part.ArcOfCircle(Part.Circle(Vector(0, 0, 0), Vector(0, 0, 1), 21.3), math.radians(-108), math.radians(-72)),  # 9
    Part.ArcOfCircle(Part.Circle(Vector(-7, -22.2, 0), Vector(0, 0, 1), 2), math.radians(72), math.radians(134)),  # 10
    Part.ArcOfCircle(Part.Circle(Vector(-10.6, -18.4, 0), Vector(0, 0, 1), 3.2), math.radians(166), math.radians(314)),  # 11
    Part.ArcOfCircle(Part.Circle(Vector(-15.7, -17.2, 0), Vector(0, 0, 1), 2), math.radians(-14), math.radians(48)),  # 12
    Part.ArcOfCircle(Part.Circle(Vector(0, 0, 0), Vector(0, 0, 1), 21.3), math.radians(-150), math.radians(-132.42)),  # 13
    Part.LineSegment(Vector(-18.4, -10.6, 0), Vector(-15.6, -17.3, 0)),  # 14
    Part.ArcOfCircle(Part.Circle(Vector(-17.5, -18.1, 0), Vector(0, 0, 1), 2), math.radians(-90), math.radians(23)),  # 15
    Part.LineSegment(Vector(-17.5, -20.1, 0), Vector(-27.5, -20.1, 0)),  # 16
    Part.LineSegment(Vector(-27.5, -20.1, 0), Vector(-27.5, -25, 0)),  # 17
], False)
sketch10.addConstraint([
    Sketcher.Constraint("Coincident", 0, 2, 1, 1),
    Sketcher.Constraint("Coincident", 1, 2, 2, 1),
    Sketcher.Constraint("Tangent", 2, 2, 3, 2),
    Sketcher.Constraint("Tangent", 3, 1, 4, 1),
    Sketcher.Constraint("Coincident", 4, 2, 5, 2),
    Sketcher.Constraint("Tangent", 5, 1, 6, 1),
    Sketcher.Constraint("Tangent", 6, 2, 7, 2),
    Sketcher.Constraint("Tangent", 7, 1, 8, 1),
    Sketcher.Constraint("Tangent", 8, 2, 9, 2),
    Sketcher.Constraint("Tangent", 9, 1, 10, 1),
    Sketcher.Constraint("Tangent", 10, 2, 11, 2),
    Sketcher.Constraint("Tangent", 11, 1, 12, 1),
    Sketcher.Constraint("Tangent", 12, 2, 13, 2),
    Sketcher.Constraint("Coincident", 13, 1, 14, 1),
    Sketcher.Constraint("Tangent", 14, 2, 15, 2),
    Sketcher.Constraint("Tangent", 15, 1, 16, 1),
    Sketcher.Constraint("Coincident", 16, 2, 17, 1),
    Sketcher.Constraint("Coincident", 17, 2, 0, 1),
    Sketcher.Constraint("Horizontal", 0),
    Sketcher.Constraint("Vertical", 1),
    Sketcher.Constraint("Horizontal", 2),
    Sketcher.Constraint("Horizontal", 16),
    Sketcher.Constraint("Vertical", 17),
    Sketcher.Constraint("Coincident", 5, 3, -1, 1),
    Sketcher.Constraint("Coincident", 9, 3, -1, 1),
    Sketcher.Constraint("Coincident", 13, 3, -1, 1),
    Sketcher.Constraint("Equal", 3, 6),
    Sketcher.Constraint("Equal", 6, 8),
    Sketcher.Constraint("Equal", 5, 9),
    Sketcher.Constraint("Equal", 8, 10),
    Sketcher.Constraint("Equal", 7, 11),
    Sketcher.Constraint("Equal", 10, 12),
    Sketcher.Constraint("Equal", 9, 13),
    Sketcher.Constraint("Equal", 12, 15),
    Sketcher.Constraint("Symmetric", 7, 3, 11, 3, -2),
    Sketcher.Constraint("Symmetric", 3, 3, 15, 3, -2),
    Sketcher.Constraint("Horizontal", 4, 2, 13, 1),
    Sketcher.Constraint("Equal", 2, 16),
    Sketcher.Constraint("Radius", 3, Q("2 mm")),
    Sketcher.Constraint("DistanceX", 0, 1, 0, 2, Q("55 mm")),
    Sketcher.Constraint("Radius", 5, Q("21.285 mm")),
    Sketcher.Constraint("Radius", 7, Q("3.215 mm")),
    Sketcher.Constraint("DistanceX", 11, 3, 7, 3, Q("21.285 mm")),
    Sketcher.Constraint("DistanceX", 2, 2, 2, 1, Q("10.043819 mm")),
    Sketcher.Constraint("DistanceY", 4, 2, -1, 1, Q("10.6425 mm")),
    Sketcher.Constraint("DistanceY", 8, 3, 7, 3, Q("3.764099 mm")),
    Sketcher.Constraint("DistanceY", 3, 3, 3, 1, Q("0.780699 mm")),
    Sketcher.Constraint("DistanceY", 1, 1, 1, 2, Q("4.965457 mm")),
])
pad3 = body.newObject("PartDesign::Pad", "Pad002")
pad3.Profile = sketch10
pad3.Length = 29
pad3.Reversed = True

# Sketch on XZ plane
sketch11 = body.newObject("Sketcher::SketchObject", "Sketch010")
sketch11.AttachmentSupport = (doc.getObject("XZ_Plane"), [""])
sketch11.MapMode = "FlatFace"
sketch11.AttachmentOffset = App.Placement(Vector(0, 0, 20.070839), App.Rotation())
sketch11.addGeometry(Part.Circle(Vector(22.5, 17.8, 0), Vector(0, 0, 1), 1.6), False)
sketch11.addConstraint([
    Sketcher.Constraint("Diameter", 0, Q("3.2 mm")),
    Sketcher.Constraint("DistanceY", -1, 1, 0, 3, Q("17.75 mm")),
    Sketcher.Constraint("DistanceX", -1, 1, 0, 3, Q("22.478091 mm")),
])
pocket8 = body.newObject("PartDesign::Pocket", "Pocket007")
pocket8.Profile = sketch11
pocket8.Type = "UpToFirst"
pocket8.Reversed = True

# Sketch on XZ plane
sketch12 = body.newObject("Sketcher::SketchObject", "Sketch011")
sketch12.AttachmentSupport = (doc.getObject("XZ_Plane"), [""])
sketch12.MapMode = "FlatFace"
sketch12.AttachmentOffset = App.Placement(Vector(0, 0, 20.070839), App.Rotation())
sketch12.addGeometry(Part.Circle(Vector(22.5, 3.2, 0), Vector(0, 0, 1), 1.6), False)
sketch12.addConstraint([
    Sketcher.Constraint("Diameter", 0, Q("3.2 mm")),
    Sketcher.Constraint("DistanceY", -1, 1, 0, 3, Q("3.25 mm")),
    Sketcher.Constraint("DistanceX", -1, 1, 0, 3, Q("22.478091 mm")),
])
pocket9 = body.newObject("PartDesign::Pocket", "Pocket008")
pocket9.Profile = sketch12
pocket9.Type = "UpToFirst"
pocket9.Reversed = True

# Sketch on XZ plane
sketch13 = body.newObject("Sketcher::SketchObject", "Sketch012")
sketch13.AttachmentSupport = (doc.getObject("XZ_Plane"), [""])
sketch13.MapMode = "FlatFace"
sketch13.AttachmentOffset = App.Placement(Vector(0, 0, 20.070839), App.Rotation())
sketch13.addGeometry(Part.Circle(Vector(-22.5, 17.8, 0), Vector(0, 0, 1), 1.6), False)
sketch13.addConstraint([
    Sketcher.Constraint("Diameter", 0, Q("3.2 mm")),
    Sketcher.Constraint("DistanceY", -1, 1, 0, 3, Q("17.75 mm")),
    Sketcher.Constraint("DistanceX", 0, 3, -1, 1, Q("22.478091 mm")),
])
pocket10 = body.newObject("PartDesign::Pocket", "Pocket009")
pocket10.Profile = sketch13
pocket10.Type = "UpToFirst"
pocket10.Reversed = True

# Sketch on XZ plane
sketch14 = body.newObject("Sketcher::SketchObject", "Sketch013")
sketch14.AttachmentSupport = (doc.getObject("XZ_Plane"), [""])
sketch14.MapMode = "FlatFace"
sketch14.AttachmentOffset = App.Placement(Vector(0, 0, 20.070839), App.Rotation())
sketch14.addGeometry(Part.Circle(Vector(-22.5, 3.2, 0), Vector(0, 0, 1), 1.6), False)
sketch14.addConstraint([
    Sketcher.Constraint("Diameter", 0, Q("3.2 mm")),
    Sketcher.Constraint("DistanceY", -1, 1, 0, 3, Q("3.25 mm")),
    Sketcher.Constraint("DistanceX", 0, 3, -1, 1, Q("22.478091 mm")),
])
pocket11 = body.newObject("PartDesign::Pocket", "Pocket010")
pocket11.Profile = sketch14
pocket11.Type = "UpToFirst"
pocket11.Reversed = True

doc.recompute()
